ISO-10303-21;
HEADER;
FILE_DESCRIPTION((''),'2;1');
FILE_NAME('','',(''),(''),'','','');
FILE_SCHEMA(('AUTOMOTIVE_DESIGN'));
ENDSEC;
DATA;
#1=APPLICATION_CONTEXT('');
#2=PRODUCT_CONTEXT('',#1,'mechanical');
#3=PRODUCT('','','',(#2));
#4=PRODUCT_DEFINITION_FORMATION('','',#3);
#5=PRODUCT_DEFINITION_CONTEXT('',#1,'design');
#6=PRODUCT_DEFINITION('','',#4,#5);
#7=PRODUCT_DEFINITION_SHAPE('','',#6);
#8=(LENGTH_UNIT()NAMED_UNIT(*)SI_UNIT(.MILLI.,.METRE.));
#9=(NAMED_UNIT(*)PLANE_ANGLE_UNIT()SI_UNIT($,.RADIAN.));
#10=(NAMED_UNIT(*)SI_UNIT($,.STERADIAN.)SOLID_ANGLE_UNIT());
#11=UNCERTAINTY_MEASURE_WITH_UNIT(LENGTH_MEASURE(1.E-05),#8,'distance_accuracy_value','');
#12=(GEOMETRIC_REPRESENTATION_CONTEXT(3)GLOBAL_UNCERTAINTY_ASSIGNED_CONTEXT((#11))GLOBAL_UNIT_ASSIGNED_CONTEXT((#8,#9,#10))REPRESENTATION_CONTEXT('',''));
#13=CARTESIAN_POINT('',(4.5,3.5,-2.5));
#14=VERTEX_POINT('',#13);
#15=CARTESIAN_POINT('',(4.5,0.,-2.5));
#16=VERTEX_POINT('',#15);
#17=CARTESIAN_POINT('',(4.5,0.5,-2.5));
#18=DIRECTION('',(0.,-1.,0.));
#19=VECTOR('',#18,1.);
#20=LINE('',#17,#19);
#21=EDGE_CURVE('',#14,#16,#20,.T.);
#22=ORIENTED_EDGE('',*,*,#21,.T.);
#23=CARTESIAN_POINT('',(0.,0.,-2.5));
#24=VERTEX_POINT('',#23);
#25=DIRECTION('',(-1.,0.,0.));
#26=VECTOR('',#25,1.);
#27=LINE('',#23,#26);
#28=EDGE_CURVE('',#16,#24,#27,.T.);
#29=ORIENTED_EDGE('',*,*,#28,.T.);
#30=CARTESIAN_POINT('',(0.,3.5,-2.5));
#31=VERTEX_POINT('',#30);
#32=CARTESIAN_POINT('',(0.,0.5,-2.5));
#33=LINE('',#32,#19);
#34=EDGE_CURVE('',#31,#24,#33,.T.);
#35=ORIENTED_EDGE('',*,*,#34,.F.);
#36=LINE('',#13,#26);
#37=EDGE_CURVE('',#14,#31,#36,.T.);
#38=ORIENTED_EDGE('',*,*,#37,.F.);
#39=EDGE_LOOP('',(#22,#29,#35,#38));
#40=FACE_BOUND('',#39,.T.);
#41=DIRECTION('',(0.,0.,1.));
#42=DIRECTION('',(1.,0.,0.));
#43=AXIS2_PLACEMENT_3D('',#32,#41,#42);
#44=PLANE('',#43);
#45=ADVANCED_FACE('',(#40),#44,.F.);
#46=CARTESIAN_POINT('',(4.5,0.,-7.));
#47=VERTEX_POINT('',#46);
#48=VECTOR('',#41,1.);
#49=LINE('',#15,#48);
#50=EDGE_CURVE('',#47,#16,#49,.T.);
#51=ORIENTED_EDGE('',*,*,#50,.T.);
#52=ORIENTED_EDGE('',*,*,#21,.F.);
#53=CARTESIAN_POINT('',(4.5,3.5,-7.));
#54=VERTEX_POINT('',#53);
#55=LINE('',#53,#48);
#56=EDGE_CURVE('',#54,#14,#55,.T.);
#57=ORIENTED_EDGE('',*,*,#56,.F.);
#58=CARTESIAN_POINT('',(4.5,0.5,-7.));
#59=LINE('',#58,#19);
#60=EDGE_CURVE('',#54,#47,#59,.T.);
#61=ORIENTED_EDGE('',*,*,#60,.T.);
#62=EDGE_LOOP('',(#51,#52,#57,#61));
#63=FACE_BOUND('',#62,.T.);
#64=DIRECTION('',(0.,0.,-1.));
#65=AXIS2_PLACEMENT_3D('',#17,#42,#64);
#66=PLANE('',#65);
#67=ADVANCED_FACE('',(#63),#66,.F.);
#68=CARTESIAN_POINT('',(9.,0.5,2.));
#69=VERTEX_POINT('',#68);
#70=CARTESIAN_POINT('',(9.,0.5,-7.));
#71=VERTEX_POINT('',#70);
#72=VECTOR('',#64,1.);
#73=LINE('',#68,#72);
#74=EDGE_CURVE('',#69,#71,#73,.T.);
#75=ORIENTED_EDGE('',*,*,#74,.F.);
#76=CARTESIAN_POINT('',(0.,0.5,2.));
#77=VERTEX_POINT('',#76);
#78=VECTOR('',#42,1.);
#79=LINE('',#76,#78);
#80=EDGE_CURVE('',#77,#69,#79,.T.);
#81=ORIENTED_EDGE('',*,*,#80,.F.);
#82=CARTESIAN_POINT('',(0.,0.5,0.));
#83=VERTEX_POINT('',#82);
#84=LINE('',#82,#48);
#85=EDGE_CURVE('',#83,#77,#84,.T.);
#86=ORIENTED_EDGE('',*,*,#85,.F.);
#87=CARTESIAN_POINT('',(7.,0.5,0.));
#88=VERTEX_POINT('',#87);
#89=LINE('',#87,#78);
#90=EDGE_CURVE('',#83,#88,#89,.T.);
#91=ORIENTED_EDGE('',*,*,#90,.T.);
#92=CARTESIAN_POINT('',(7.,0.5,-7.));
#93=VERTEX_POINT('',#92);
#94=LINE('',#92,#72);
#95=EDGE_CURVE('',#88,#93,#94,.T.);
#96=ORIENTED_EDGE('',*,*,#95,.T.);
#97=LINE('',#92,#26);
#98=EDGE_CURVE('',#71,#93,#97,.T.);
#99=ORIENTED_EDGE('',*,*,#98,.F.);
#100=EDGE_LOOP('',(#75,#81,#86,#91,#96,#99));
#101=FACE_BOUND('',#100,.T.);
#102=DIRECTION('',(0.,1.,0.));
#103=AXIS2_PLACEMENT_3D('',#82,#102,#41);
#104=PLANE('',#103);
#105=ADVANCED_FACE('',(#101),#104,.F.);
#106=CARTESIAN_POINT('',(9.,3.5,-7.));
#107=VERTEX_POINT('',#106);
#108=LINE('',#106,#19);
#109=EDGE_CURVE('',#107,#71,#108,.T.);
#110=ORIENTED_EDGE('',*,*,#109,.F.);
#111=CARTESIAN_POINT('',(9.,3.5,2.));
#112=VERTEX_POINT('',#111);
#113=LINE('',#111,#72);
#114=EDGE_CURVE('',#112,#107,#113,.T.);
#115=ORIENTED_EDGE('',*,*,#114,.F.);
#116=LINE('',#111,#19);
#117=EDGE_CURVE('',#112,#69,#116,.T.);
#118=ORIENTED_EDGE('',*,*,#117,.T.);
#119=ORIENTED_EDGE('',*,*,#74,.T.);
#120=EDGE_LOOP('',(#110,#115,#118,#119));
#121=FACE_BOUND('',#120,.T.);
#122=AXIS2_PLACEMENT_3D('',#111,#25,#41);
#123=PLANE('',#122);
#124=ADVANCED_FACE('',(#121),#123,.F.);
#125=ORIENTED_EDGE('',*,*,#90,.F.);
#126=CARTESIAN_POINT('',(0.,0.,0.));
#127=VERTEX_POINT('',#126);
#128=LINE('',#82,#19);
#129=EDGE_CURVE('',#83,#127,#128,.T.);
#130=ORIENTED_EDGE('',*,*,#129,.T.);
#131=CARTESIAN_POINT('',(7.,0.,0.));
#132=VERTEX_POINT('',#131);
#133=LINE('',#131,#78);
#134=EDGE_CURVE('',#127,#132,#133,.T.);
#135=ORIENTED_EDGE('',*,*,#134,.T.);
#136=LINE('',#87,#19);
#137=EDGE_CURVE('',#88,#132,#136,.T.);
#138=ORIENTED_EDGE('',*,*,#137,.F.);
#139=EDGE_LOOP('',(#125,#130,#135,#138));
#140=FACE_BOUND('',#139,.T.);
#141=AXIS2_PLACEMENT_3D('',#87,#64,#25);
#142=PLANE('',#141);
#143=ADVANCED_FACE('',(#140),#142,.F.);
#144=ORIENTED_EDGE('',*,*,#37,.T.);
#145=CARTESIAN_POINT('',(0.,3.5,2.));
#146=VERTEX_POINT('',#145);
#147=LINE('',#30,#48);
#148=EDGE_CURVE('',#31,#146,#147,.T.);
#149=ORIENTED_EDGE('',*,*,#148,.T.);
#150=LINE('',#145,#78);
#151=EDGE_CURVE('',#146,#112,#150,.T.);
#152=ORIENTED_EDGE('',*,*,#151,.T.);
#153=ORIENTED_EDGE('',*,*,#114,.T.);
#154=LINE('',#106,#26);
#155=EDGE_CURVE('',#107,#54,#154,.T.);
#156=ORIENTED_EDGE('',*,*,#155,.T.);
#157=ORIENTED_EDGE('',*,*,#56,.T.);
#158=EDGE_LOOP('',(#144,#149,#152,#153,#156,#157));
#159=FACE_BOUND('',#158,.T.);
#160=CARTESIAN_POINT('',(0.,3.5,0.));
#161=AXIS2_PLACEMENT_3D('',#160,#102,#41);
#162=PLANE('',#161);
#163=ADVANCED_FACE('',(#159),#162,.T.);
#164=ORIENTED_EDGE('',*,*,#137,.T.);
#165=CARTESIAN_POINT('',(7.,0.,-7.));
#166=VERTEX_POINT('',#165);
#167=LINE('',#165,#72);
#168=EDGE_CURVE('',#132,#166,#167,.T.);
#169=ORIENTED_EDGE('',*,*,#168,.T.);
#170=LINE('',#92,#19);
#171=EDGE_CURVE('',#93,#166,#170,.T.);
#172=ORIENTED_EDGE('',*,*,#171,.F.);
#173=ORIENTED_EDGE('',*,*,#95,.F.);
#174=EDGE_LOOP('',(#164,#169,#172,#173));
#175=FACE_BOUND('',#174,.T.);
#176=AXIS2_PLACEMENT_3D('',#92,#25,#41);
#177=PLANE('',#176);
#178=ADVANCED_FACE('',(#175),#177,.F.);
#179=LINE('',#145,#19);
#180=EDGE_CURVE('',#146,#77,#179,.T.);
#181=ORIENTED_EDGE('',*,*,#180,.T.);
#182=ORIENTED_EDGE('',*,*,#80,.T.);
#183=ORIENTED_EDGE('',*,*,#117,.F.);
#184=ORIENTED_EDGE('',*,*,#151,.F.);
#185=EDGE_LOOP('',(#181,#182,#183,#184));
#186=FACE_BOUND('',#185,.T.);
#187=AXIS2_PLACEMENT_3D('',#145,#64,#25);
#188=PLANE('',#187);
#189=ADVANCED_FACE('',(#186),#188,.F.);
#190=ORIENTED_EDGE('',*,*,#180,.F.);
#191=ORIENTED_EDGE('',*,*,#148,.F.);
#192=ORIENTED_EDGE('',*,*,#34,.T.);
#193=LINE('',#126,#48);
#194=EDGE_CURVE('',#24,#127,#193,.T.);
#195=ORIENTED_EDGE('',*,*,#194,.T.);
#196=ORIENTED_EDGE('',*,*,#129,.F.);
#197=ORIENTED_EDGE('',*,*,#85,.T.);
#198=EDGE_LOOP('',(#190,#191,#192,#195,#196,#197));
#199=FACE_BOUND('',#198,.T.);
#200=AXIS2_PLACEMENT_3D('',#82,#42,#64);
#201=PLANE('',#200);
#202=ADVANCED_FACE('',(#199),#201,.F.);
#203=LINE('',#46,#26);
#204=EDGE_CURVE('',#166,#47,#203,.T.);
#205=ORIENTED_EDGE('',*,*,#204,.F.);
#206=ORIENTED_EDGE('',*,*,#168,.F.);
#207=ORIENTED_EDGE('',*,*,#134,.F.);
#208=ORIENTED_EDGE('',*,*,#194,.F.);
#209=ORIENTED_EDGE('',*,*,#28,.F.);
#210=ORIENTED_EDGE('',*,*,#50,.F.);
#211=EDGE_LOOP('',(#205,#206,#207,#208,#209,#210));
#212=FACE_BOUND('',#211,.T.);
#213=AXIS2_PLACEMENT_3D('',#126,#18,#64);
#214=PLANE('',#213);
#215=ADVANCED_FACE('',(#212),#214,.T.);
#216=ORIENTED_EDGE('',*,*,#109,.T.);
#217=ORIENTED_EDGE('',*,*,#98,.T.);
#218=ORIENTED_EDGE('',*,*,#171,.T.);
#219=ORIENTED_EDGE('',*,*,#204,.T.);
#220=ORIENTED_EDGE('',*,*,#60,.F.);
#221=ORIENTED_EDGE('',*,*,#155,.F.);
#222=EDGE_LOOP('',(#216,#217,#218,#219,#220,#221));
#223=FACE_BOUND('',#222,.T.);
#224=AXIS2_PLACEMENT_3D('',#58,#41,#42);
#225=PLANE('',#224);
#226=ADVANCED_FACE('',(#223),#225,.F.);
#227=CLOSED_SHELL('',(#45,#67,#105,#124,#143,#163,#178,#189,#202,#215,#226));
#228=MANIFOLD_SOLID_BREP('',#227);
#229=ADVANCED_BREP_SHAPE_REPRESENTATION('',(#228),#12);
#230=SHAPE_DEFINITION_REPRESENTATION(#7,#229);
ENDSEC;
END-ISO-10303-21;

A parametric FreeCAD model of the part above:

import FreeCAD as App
import Part
import Sketcher


def add_polygon(sketch, points):
    """Adds a closed chain of lines whose ends are joined by coincident constraints."""
    first, n = sketch.GeometryCount, len(points)
    for a, b in zip(points, points[1:] + points[:1]):
        sketch.addGeometry(Part.LineSegment(App.Vector(*a, 0), App.Vector(*b, 0)), False)
    for i in range(n):
        sketch.addConstraint(Sketcher.Constraint("Coincident", first + i, 2, first + (i + 1) % n, 1))

doc = App.newDocument("Part")
params = doc.addObject("Spreadsheet::Sheet", "Params")
for row, (alias, value) in enumerate([
    ("sketch1_width", "7 mm"),
    ("sketch1_width2", "2.5 mm"),
    ("pad1_length", "0.5 mm"),
    ("sketch2_width", "9 mm"),
    ("pad2_length", "3 mm"),
], start=1):
    params.set(f"A{row}", alias)
    params.set(f"B{row}", "=" + value)
    params.setAlias(f"B{row}", alias)

body = doc.addObject("PartDesign::Body", "Body")

sketch1 = body.newObject("Sketcher::SketchObject", "Sketch")
sketch1.AttachmentSupport = (doc.getObject("XZ_Plane"), [""])
sketch1.MapMode = "FlatFace"
add_polygon(sketch1, [(0, -2.5), (0, 0), (7, 0), (7, -7), (4.5, -7), (4.5, -2.5)])
sketch1.addConstraint([
    Sketcher.Constraint("Vertical", 0),
    Sketcher.Constraint("Horizontal", 1),
    Sketcher.Constraint("Vertical", 2),
    Sketcher.Constraint("Horizontal", 3),
    Sketcher.Constraint("Vertical", 4),
    Sketcher.Constraint("Horizontal", 5),
    Sketcher.Constraint("Coincident", 0, 2, -1, 1),
    Sketcher.Constraint("Equal", 3, 0),
    Sketcher.Constraint("Equal", 1, 2),
    Sketcher.Constraint("DistanceX", 1, 1, 1, 2, 7.0),
    Sketcher.Constraint("DistanceX", 3, 2, 3, 1, 2.5),
])
sketch1.setExpression("Constraints[15]", "Params.sketch1_width")
sketch1.setExpression("Constraints[16]", "Params.sketch1_width2")
pad1 = body.newObject("PartDesign::Pad", "Pad")
pad1.Profile = sketch1
pad1.setExpression("Length", "Params.pad1_length")
pad1.Reversed = True

sketch2 = body.newObject("Sketcher::SketchObject", "Sketch001")
sketch2.AttachmentSupport = (doc.getObject("XZ_Plane"), [""])
sketch2.MapMode = "FlatFace"
sketch2.AttachmentOffset = App.Placement(App.Vector(0, 0, -0.5), App.Rotation())
add_polygon(sketch2, [(0, -2.5), (0, 2), (9, 2), (9, -7), (4.5, -7), (4.5, -2.5)])
sketch2.addConstraint([
    Sketcher.Constraint("Vertical", 0),
    Sketcher.Constraint("Horizontal", 1),
    Sketcher.Constraint("Vertical", 2),
    Sketcher.Constraint("Horizontal", 3),
    Sketcher.Constraint("Vertical", 4),
    Sketcher.Constraint("Horizontal", 5),
    Sketcher.Constraint("PointOnObject", 0, 2, -2),
    Sketcher.Constraint("Equal", 3, 5),
    Sketcher.Constraint("Equal", 5, 0),
    Sketcher.Constraint("Equal", 1, 2),
    Sketcher.Constraint("DistanceX", 1, 1, 1, 2, 9.0),
    Sketcher.Constraint("DistanceY", -1, 1, 0, 2, 2.0),
])
sketch2.setExpression("Constraints[16]", "Params.sketch2_width")
pad2 = body.newObject("PartDesign::Pad", "Pad001")
pad2.Profile = sketch2
pad2.setExpression("Length", "Params.pad2_length")
pad2.Reversed = True

doc.recompute()
